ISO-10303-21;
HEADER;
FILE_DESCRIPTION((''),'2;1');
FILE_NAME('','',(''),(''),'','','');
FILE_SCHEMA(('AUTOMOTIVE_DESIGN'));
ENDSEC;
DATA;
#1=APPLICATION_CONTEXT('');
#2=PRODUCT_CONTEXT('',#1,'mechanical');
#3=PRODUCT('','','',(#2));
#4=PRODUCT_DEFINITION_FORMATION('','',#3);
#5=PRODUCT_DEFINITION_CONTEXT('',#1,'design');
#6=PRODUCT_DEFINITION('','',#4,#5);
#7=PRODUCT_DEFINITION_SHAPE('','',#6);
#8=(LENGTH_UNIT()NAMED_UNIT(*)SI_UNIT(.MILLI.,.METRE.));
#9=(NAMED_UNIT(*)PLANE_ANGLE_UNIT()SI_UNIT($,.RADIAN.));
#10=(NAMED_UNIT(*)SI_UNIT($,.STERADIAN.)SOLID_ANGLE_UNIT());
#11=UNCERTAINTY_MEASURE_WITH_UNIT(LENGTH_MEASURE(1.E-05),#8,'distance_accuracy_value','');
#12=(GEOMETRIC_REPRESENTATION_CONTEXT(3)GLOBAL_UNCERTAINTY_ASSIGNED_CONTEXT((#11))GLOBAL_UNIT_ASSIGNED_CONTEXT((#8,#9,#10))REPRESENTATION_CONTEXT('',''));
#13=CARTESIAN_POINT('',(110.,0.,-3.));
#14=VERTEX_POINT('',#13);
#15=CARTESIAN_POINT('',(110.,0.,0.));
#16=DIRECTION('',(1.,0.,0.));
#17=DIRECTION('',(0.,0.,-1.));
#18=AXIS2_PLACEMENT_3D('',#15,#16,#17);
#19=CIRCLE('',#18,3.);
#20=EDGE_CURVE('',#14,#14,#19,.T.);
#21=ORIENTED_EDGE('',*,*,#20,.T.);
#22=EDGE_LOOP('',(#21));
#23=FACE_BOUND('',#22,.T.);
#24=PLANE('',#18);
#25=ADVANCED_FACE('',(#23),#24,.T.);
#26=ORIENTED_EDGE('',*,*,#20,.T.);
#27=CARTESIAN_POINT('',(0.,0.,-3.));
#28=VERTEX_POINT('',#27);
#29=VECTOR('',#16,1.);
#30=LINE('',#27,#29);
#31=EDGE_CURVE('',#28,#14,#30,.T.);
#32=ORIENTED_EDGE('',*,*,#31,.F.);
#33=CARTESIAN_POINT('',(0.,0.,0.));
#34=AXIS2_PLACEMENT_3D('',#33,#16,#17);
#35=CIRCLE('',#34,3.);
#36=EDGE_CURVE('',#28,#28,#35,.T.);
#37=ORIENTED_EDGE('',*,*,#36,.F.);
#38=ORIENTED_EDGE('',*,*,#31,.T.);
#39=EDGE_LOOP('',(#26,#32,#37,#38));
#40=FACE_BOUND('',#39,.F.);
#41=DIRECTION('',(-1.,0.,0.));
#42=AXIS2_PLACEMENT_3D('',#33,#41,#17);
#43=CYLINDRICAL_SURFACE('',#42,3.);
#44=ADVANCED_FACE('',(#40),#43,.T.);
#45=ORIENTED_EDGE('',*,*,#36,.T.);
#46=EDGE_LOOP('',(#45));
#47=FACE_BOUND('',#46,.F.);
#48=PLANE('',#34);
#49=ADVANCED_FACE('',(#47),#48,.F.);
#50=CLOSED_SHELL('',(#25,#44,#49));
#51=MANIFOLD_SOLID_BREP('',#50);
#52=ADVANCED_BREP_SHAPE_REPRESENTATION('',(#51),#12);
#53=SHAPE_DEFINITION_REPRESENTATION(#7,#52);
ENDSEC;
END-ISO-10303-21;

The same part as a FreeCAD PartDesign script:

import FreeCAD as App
import Part
import Sketcher
from FreeCAD import Vector
Q = App.Units.Quantity

doc = App.newDocument("Part")
body = doc.addObject("PartDesign::Body", "Body")

# Sketch on YZ plane
sketch1 = body.newObject("Sketcher::SketchObject", "Sketch")
sketch1.AttachmentSupport = (doc.getObject("YZ_Plane"), [""])
sketch1.MapMode = "FlatFace"
sketch1.addGeometry(Part.Circle(Vector(0, 0, 0), Vector(0, 0, 1), 3), False)
sketch1.addConstraint([
    Sketcher.Constraint("Coincident", 0, 3, -1, 1),
    Sketcher.Constraint("Diameter", 0, Q("6 mm")),
])
pad1 = body.newObject("PartDesign::Pad", "Pad")
pad1.Profile = sketch1
pad1.Length = 110

doc.recompute()
